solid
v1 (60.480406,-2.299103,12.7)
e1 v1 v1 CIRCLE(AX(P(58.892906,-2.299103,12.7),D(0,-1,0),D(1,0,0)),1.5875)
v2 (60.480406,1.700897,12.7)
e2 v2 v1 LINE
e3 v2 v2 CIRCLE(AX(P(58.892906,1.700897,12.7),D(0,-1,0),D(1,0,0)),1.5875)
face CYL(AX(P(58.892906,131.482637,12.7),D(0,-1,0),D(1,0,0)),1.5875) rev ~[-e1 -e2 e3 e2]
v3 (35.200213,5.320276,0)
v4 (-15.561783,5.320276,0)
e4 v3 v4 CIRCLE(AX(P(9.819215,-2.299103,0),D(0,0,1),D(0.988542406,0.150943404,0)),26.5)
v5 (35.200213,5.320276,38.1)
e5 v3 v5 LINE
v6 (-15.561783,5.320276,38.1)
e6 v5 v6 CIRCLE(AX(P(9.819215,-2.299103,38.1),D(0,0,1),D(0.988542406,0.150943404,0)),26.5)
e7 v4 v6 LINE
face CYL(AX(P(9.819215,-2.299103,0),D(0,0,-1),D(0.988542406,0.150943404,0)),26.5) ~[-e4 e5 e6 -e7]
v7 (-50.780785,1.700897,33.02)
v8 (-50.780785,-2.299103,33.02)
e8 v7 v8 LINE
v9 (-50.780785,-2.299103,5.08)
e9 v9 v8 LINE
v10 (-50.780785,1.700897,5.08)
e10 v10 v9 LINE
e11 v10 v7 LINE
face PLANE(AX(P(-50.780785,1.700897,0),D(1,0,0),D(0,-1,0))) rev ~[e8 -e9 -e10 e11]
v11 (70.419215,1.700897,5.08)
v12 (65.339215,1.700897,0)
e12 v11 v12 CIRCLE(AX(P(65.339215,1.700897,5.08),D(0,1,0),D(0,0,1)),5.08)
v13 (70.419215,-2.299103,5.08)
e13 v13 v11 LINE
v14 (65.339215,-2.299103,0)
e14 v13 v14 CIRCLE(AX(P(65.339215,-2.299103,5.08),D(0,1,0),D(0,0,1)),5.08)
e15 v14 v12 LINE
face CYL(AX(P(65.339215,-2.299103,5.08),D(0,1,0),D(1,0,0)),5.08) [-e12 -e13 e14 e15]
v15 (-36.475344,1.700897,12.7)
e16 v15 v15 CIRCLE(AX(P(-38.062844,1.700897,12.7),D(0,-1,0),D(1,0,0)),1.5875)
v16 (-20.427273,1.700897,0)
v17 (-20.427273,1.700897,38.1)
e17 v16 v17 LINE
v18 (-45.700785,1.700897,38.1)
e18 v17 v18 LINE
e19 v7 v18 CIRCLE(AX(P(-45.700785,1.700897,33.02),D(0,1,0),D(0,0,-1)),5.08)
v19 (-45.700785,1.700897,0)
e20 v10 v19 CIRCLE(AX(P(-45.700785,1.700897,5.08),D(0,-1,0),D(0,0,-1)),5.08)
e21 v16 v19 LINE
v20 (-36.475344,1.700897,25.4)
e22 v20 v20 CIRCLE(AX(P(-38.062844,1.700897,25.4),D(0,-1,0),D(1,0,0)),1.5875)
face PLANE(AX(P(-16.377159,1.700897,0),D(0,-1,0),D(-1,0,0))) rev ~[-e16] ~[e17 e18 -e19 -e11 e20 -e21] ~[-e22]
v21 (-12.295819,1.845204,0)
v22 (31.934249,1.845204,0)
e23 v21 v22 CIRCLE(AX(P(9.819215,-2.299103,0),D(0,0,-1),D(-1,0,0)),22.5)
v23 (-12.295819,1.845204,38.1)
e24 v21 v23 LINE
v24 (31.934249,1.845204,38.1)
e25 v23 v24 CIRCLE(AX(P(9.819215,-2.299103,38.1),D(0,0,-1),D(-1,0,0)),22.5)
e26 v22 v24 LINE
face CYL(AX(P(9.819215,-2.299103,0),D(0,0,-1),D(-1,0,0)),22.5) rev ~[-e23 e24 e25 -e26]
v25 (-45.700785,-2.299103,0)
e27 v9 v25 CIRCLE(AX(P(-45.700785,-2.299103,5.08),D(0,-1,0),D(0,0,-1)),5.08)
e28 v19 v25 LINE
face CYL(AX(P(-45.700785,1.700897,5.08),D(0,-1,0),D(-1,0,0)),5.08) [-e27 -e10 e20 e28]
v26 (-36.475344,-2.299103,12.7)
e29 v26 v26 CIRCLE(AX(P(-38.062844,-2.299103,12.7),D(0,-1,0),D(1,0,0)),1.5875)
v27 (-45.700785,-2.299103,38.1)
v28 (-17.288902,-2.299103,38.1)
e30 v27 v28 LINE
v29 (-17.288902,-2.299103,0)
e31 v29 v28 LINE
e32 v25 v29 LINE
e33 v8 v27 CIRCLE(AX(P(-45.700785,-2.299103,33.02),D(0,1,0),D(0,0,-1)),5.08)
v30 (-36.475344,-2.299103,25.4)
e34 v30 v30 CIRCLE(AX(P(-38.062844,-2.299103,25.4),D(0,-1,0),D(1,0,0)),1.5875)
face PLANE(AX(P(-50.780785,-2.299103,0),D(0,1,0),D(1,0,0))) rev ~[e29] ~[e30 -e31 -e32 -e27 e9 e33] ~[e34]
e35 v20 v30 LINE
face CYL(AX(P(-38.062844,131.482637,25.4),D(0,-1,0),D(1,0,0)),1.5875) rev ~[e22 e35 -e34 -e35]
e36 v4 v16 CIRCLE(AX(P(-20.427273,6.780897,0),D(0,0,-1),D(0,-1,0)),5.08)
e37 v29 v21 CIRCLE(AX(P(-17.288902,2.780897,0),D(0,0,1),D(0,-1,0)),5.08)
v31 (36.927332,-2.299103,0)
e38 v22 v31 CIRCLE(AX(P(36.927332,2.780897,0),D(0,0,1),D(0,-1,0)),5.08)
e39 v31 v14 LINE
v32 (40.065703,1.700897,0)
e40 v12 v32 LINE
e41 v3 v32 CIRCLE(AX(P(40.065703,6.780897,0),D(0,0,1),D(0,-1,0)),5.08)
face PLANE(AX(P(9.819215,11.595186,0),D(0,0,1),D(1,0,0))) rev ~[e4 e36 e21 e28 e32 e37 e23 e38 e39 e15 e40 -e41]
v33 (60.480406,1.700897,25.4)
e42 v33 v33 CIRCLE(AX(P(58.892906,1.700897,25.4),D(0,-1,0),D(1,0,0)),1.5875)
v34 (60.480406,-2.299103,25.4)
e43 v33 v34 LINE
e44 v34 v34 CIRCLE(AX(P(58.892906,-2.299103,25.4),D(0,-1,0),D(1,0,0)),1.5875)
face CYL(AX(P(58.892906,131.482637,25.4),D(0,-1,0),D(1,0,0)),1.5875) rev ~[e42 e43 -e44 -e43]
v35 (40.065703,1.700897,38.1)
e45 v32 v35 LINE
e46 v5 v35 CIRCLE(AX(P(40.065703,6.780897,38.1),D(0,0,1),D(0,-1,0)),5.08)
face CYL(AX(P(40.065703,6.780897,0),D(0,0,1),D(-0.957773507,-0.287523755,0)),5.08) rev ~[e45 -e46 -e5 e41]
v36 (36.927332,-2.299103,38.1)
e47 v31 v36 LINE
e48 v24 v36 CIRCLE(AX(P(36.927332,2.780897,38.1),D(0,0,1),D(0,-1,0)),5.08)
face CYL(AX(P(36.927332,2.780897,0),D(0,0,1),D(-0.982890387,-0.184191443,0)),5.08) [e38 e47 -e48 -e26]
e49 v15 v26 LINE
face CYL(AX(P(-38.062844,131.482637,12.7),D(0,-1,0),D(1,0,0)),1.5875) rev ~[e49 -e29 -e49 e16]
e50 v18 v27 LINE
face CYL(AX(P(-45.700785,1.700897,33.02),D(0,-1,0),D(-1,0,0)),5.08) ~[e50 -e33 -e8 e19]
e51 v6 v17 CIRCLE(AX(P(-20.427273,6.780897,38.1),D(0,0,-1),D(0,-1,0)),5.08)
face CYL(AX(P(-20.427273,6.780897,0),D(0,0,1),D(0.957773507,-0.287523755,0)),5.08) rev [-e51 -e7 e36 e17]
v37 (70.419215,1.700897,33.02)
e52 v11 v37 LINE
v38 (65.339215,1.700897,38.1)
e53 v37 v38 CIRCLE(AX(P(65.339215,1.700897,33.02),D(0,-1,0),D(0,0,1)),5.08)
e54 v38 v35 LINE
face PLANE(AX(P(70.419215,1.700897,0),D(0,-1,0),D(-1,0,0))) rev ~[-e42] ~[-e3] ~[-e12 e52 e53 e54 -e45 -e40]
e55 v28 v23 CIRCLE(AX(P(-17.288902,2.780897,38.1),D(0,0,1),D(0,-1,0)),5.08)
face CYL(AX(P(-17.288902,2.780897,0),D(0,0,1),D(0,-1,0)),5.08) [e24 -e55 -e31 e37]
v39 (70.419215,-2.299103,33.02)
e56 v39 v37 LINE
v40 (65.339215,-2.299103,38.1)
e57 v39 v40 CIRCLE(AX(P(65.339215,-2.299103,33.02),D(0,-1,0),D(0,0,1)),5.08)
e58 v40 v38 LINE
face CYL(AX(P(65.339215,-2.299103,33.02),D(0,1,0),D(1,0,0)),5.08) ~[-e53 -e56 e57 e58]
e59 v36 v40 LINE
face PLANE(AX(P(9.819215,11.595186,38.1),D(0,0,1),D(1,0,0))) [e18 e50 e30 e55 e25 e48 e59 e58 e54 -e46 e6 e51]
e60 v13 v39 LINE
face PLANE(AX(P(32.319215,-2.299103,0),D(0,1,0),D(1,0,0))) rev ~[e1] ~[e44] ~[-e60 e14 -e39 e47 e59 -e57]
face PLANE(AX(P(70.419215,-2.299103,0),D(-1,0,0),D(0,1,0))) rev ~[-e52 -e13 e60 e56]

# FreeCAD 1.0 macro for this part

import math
import FreeCAD as App
import Part
import Sketcher
Q = App.Units.Quantity


def edges_at(feature, points):
    """Names of the edges that pass closest to the given points."""
    edges = feature.Shape.Edges
    near = lambda p: min(range(len(edges)), key=lambda i: edges[i].distToShape(Part.Vertex(*p))[0])
    return sorted({f"Edge{near(p) + 1}" for p in points})

doc = App.newDocument("Part")
body = doc.addObject("PartDesign::Body", "Body")

sketch1 = body.newObject("Sketcher::SketchObject", "Sketch")
sketch1.AttachmentSupport = (doc.getObject("XY_Plane"), [""])
sketch1.MapMode = "FlatFace"
sketch1.addGeometry([
    Part.ArcOfCircle(Part.Circle(App.Vector(9.8, -2.3, 0), App.Vector(0, 0, 1), 26.5), math.radians(9), math.radians(171)),
    Part.LineSegment(App.Vector(-16.4, 1.7, 0), App.Vector(-50.8, 1.7, 0)),
    Part.LineSegment(App.Vector(-50.8, 1.7, 0), App.Vector(-50.8, -2.3, 0)),
    Part.LineSegment(App.Vector(-50.8, -2.3, 0), App.Vector(-12.7, -2.3, 0)),
    Part.ArcOfCircle(Part.Circle(App.Vector(9.8, -2.3, 0), App.Vector(0, 0, 1), 22.5), math.radians(0), math.radians(180)),
    Part.LineSegment(App.Vector(32.3, -2.3, 0), App.Vector(70.4, -2.3, 0)),
    Part.LineSegment(App.Vector(70.4, -2.3, 0), App.Vector(70.4, 1.7, 0)),
    Part.LineSegment(App.Vector(70.4, 1.7, 0), App.Vector(36, 1.7, 0)),
], False)
sketch1.addConstraint([
    Sketcher.Constraint("Coincident", 0, 2, 1, 1),
    Sketcher.Constraint("Coincident", 1, 2, 2, 1),
    Sketcher.Constraint("Coincident", 2, 2, 3, 1),
    Sketcher.Constraint("Coincident", 3, 2, 4, 2),
    Sketcher.Constraint("Coincident", 4, 1, 5, 1),
    Sketcher.Constraint("Coincident", 5, 2, 6, 1),
    Sketcher.Constraint("Coincident", 6, 2, 7, 1),
    Sketcher.Constraint("Coincident", 7, 2, 0, 1),
    Sketcher.Constraint("Horizontal", 1),
    Sketcher.Constraint("Vertical", 2),
    Sketcher.Constraint("Horizontal", 3),
    Sketcher.Constraint("Horizontal", 5),
    Sketcher.Constraint("Vertical", 6),
    Sketcher.Constraint("Horizontal", 7),
    Sketcher.Constraint("Coincident", 4, 3, 0, 3),
    Sketcher.Constraint("Horizontal", 4, 3, 2, 2),
    Sketcher.Constraint("Horizontal", 3, 2, 4, 1),
    Sketcher.Constraint("Horizontal", 1, 2, 6, 2),
    Sketcher.Constraint("Equal", 3, 5),
    Sketcher.Constraint("Radius", 0, Q("26.5 mm")),
    Sketcher.Constraint("Radius", 4, Q("22.5 mm")),
    Sketcher.Constraint("DistanceY", 2, 2, 2, 1, Q("4 mm")),
    Sketcher.Constraint("DistanceX", 3, 1, 3, 2, Q("38.1 mm")),
    Sketcher.Constraint("DistanceX", 0, 2, -1, 1, Q("16.377159 mm")),
    Sketcher.Constraint("DistanceY", 0, 3, -1, 1, Q("2.299103 mm")),
])
pad1 = body.newObject("PartDesign::Pad", "Pad")
pad1.Profile = sketch1
pad1.Length = 38.1
doc.recompute()

fillet = body.newObject("PartDesign::Fillet", "Fillet")
fillet.Base = (pad1, edges_at(pad1, [
    (70.419, -0.299, 38.1),
    (70.419, -0.299, 0),
    (32.319, -2.299, 19.05),
    (-12.681, -2.299, 19.05),
    (-50.781, -0.299, 38.1),
    (-50.781, -0.299, 0),
    (-16.377, 1.701, 19.05),
    (36.016, 1.701, 19.05),
]))
fillet.Radius = 5.08

sketch2 = body.newObject("Sketcher::SketchObject", "Sketch001")
sketch2.AttachmentSupport = (doc.getObject("XZ_Plane"), [""])
sketch2.MapMode = "FlatFace"
sketch2.AttachmentOffset = App.Placement(App.Vector(0, 0, -1.700897), App.Rotation())
sketch2.addGeometry([
    Part.Circle(App.Vector(58.9, 25.4, 0), App.Vector(0, 0, 1), 1.6),
    Part.Circle(App.Vector(58.9, 12.7, 0), App.Vector(0, 0, 1), 1.6),
    Part.Circle(App.Vector(-38.1, 12.7, 0), App.Vector(0, 0, 1), 1.6),
    Part.Circle(App.Vector(-38.1, 25.4, 0), App.Vector(0, 0, 1), 1.6),
], False)
sketch2.addConstraint([
    Sketcher.Constraint("Equal", 0, 1),
    Sketcher.Constraint("Equal", 1, 2),
    Sketcher.Constraint("Equal", 2, 3),
    Sketcher.Constraint("Horizontal", 1, 3, 2, 3),
    Sketcher.Constraint("Horizontal", 0, 3, 3, 3),
    Sketcher.Constraint("Vertical", 0, 3, 1, 3),
    Sketcher.Constraint("Vertical", 2, 3, 3, 3),
    Sketcher.Constraint("Diameter", 0, Q("3.175 mm")),
    Sketcher.Constraint("DistanceY", -1, 1, 0, 3, Q("25.4 mm")),
    Sketcher.Constraint("DistanceY", -1, 1, 1, 3, Q("12.7 mm")),
    Sketcher.Constraint("DistanceX", 2, 3, 1, 3, Q("96.95575 mm")),
    Sketcher.Constraint("DistanceX", -1, 1, 0, 3, Q("58.892906 mm")),
])
doc.recompute()
hole = body.newObject("PartDesign::Hole", "Hole")
hole.Profile = sketch2
hole.ThreadType = "None"
hole.Diameter = 3.175
hole.DepthType = "ThroughAll"
hole.Reversed = True

doc.recompute()
